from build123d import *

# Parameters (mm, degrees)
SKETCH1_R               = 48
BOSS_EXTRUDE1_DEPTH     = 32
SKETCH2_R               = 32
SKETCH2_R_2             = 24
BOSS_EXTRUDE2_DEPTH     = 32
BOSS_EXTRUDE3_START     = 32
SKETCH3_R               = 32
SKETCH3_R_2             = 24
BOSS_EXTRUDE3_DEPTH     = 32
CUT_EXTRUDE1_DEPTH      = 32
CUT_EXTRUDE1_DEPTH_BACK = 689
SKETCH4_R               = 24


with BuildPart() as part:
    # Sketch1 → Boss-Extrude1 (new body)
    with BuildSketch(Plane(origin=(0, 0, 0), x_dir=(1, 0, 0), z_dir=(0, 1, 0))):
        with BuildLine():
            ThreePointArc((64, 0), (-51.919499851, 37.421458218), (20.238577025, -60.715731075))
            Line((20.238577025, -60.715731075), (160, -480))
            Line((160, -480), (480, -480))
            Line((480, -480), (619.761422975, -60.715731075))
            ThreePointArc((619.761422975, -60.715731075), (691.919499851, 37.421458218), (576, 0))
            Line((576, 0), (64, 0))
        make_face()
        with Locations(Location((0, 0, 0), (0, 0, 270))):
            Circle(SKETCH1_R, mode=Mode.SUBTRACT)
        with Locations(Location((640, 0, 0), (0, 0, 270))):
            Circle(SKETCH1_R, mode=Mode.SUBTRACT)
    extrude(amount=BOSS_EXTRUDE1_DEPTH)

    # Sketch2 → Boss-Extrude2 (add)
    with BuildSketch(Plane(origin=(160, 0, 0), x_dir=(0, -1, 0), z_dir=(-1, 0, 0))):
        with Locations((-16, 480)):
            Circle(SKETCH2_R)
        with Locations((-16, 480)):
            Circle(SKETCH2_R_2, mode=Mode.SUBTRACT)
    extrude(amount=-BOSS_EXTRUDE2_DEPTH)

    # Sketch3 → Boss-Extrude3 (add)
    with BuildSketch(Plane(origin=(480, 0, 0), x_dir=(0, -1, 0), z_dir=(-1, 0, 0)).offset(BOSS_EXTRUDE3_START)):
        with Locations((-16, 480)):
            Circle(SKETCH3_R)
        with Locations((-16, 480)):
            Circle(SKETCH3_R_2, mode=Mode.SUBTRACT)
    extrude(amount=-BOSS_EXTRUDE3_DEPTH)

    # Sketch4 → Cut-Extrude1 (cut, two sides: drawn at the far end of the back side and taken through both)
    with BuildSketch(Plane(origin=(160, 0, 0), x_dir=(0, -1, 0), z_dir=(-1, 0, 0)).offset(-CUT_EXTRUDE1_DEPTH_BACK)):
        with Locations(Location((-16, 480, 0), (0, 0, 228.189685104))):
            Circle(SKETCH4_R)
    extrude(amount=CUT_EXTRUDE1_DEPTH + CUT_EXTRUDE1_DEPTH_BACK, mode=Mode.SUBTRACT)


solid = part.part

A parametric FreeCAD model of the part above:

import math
import FreeCAD as App
import Part
import Sketcher
from FreeCAD import Vector

doc = App.newDocument("Part")
body = doc.addObject("PartDesign::Body", "Body")

# Sketch on XZ plane
sketch1 = doc.addObject("Sketcher::SketchObject", "Sketch")
body.addObject(sketch1)
sketch1.AttachmentSupport = (doc.XZ_Plane, [""])
sketch1.MapMode = "FlatFace"
sketch1.addGeometry(Part.ArcOfCircle(Part.Circle(Vector(0, 0, 0), Vector(0, 0, 1), 64), math.radians(72), math.radians(360)), False)
sketch1.addGeometry(Part.LineSegment(Vector(20, 61, 0), Vector(160, 480, 0)), False)
sketch1.addGeometry(Part.LineSegment(Vector(160, 480, 0), Vector(480, 480, 0)), False)
sketch1.addGeometry(Part.LineSegment(Vector(480, 480, 0), Vector(620, 61, 0)), False)
sketch1.addGeometry(Part.ArcOfCircle(Part.Circle(Vector(640, 0, 0), Vector(0, 0, 1), 64), math.radians(180), math.radians(468)), False)
sketch1.addGeometry(Part.LineSegment(Vector(576, 0, 0), Vector(64, 0, 0)), False)
sketch1.addGeometry(Part.Circle(Vector(0, 0, 0), Vector(0, 0, 1), 48), False)
sketch1.addGeometry(Part.Circle(Vector(640, 0, 0), Vector(0, 0, 1), 48), False)
sketch1.addConstraint(Sketcher.Constraint("Coincident", 0, 1, 1, 1))
sketch1.addConstraint(Sketcher.Constraint("Coincident", 1, 2, 2, 1))
sketch1.addConstraint(Sketcher.Constraint("Coincident", 2, 2, 3, 1))
sketch1.addConstraint(Sketcher.Constraint("Coincident", 3, 2, 4, 2))
sketch1.addConstraint(Sketcher.Constraint("Coincident", 4, 1, 5, 1))
sketch1.addConstraint(Sketcher.Constraint("Coincident", 5, 2, 0, 2))
sketch1.addConstraint(Sketcher.Constraint("Horizontal", 2))
sketch1.addConstraint(Sketcher.Constraint("Horizontal", 5))
sketch1.addConstraint(Sketcher.Constraint("Coincident", 0, 3, -1, 1))
sketch1.addConstraint(Sketcher.Constraint("Coincident", 6, 3, -1, 1))
sketch1.addConstraint(Sketcher.Constraint("Coincident", 7, 3, 4, 3))
sketch1.addConstraint(Sketcher.Constraint("Equal", 0, 4))
sketch1.addConstraint(Sketcher.Constraint("Equal", 6, 7))
sketch1.addConstraint(Sketcher.Constraint("PointOnObject", 4, 3, -1))
sketch1.addConstraint(Sketcher.Constraint("PointOnObject", 4, 1, -1))
sketch1.addConstraint(Sketcher.Constraint("Horizontal", 0, 1, 3, 2))
sketch1.addConstraint(Sketcher.Constraint("Equal", 1, 3))
sketch1.addConstraint(Sketcher.Constraint("Diameter", 6, 96.0))
sketch1.addConstraint(Sketcher.Constraint("Radius", 0, 64.0))
sketch1.addConstraint(Sketcher.Constraint("DistanceX", 2, 1, 2, 2, 320.0))
sketch1.addConstraint(Sketcher.Constraint("DistanceX", 5, 2, 5, 1, 512.0))
sketch1.addConstraint(Sketcher.Constraint("DistanceY", -1, 1, 1, 2, 480.0))
sketch1.addConstraint(Sketcher.Constraint("DistanceY", -1, 1, 0, 1, 60.715731))
pad1 = doc.addObject("PartDesign::Pad", "Pad")
body.addObject(pad1)
pad1.Profile = sketch1
pad1.Length = 32
pad1.Reversed = True

# Sketch on YZ plane
sketch2 = doc.addObject("Sketcher::SketchObject", "Sketch001")
body.addObject(sketch2)
sketch2.AttachmentSupport = (doc.YZ_Plane, [""])
sketch2.MapMode = "FlatFace"
sketch2.AttachmentOffset = App.Placement(Vector(0, 0, 160), App.Rotation())
sketch2.addGeometry(Part.Circle(Vector(16, 480, 0), Vector(0, 0, 1), 32), False)
sketch2.addGeometry(Part.Circle(Vector(16, 480, 0), Vector(0, 0, 1), 24), False)
sketch2.addConstraint(Sketcher.Constraint("Coincident", 1, 3, 0, 3))
sketch2.addConstraint(Sketcher.Constraint("Diameter", 0, 64.0))
sketch2.addConstraint(Sketcher.Constraint("Diameter", 1, 48.0))
sketch2.addConstraint(Sketcher.Constraint("DistanceX", -1, 1, 0, 3, 16.0))
sketch2.addConstraint(Sketcher.Constraint("DistanceY", -1, 1, 0, 3, 480.0))
pad2 = doc.addObject("PartDesign::Pad", "Pad001")
body.addObject(pad2)
pad2.Profile = sketch2
pad2.Length = 32

# Sketch on YZ plane
sketch3 = doc.addObject("Sketcher::SketchObject", "Sketch002")
body.addObject(sketch3)
sketch3.AttachmentSupport = (doc.YZ_Plane, [""])
sketch3.MapMode = "FlatFace"
sketch3.AttachmentOffset = App.Placement(Vector(0, 0, 448), App.Rotation())
sketch3.addGeometry(Part.Circle(Vector(16, 480, 0), Vector(0, 0, 1), 32), False)
sketch3.addGeometry(Part.Circle(Vector(16, 480, 0), Vector(0, 0, 1), 24), False)
sketch3.addConstraint(Sketcher.Constraint("Coincident", 1, 3, 0, 3))
sketch3.addConstraint(Sketcher.Constraint("Diameter", 0, 64.0))
sketch3.addConstraint(Sketcher.Constraint("Diameter", 1, 48.0))
sketch3.addConstraint(Sketcher.Constraint("DistanceX", -1, 1, 0, 3, 16.0))
sketch3.addConstraint(Sketcher.Constraint("DistanceY", -1, 1, 0, 3, 480.0))
pad3 = doc.addObject("PartDesign::Pad", "Pad002")
body.addObject(pad3)
pad3.Profile = sketch3
pad3.Length = 32

# Sketch on YZ plane
sketch4 = doc.addObject("Sketcher::SketchObject", "Sketch003")
body.addObject(sketch4)
sketch4.AttachmentSupport = (doc.YZ_Plane, [""])
sketch4.MapMode = "FlatFace"
sketch4.AttachmentOffset = App.Placement(Vector(0, 0, 160), App.Rotation())
sketch4.addGeometry(Part.Circle(Vector(16, 480, 0), Vector(0, 0, 1), 24), False)
sketch4.addConstraint(Sketcher.Constraint("Diameter", 0, 48.0))
sketch4.addConstraint(Sketcher.Constraint("DistanceX", -1, 1, 0, 3, 16.0))
sketch4.addConstraint(Sketcher.Constraint("DistanceY", -1, 1, 0, 3, 480.0))
pocket1 = doc.addObject("PartDesign::Pocket", "Pocket")
body.addObject(pocket1)
pocket1.Profile = sketch4
pocket1.Type = "ThroughAll"
pocket1.Midplane = True

doc.recompute()
